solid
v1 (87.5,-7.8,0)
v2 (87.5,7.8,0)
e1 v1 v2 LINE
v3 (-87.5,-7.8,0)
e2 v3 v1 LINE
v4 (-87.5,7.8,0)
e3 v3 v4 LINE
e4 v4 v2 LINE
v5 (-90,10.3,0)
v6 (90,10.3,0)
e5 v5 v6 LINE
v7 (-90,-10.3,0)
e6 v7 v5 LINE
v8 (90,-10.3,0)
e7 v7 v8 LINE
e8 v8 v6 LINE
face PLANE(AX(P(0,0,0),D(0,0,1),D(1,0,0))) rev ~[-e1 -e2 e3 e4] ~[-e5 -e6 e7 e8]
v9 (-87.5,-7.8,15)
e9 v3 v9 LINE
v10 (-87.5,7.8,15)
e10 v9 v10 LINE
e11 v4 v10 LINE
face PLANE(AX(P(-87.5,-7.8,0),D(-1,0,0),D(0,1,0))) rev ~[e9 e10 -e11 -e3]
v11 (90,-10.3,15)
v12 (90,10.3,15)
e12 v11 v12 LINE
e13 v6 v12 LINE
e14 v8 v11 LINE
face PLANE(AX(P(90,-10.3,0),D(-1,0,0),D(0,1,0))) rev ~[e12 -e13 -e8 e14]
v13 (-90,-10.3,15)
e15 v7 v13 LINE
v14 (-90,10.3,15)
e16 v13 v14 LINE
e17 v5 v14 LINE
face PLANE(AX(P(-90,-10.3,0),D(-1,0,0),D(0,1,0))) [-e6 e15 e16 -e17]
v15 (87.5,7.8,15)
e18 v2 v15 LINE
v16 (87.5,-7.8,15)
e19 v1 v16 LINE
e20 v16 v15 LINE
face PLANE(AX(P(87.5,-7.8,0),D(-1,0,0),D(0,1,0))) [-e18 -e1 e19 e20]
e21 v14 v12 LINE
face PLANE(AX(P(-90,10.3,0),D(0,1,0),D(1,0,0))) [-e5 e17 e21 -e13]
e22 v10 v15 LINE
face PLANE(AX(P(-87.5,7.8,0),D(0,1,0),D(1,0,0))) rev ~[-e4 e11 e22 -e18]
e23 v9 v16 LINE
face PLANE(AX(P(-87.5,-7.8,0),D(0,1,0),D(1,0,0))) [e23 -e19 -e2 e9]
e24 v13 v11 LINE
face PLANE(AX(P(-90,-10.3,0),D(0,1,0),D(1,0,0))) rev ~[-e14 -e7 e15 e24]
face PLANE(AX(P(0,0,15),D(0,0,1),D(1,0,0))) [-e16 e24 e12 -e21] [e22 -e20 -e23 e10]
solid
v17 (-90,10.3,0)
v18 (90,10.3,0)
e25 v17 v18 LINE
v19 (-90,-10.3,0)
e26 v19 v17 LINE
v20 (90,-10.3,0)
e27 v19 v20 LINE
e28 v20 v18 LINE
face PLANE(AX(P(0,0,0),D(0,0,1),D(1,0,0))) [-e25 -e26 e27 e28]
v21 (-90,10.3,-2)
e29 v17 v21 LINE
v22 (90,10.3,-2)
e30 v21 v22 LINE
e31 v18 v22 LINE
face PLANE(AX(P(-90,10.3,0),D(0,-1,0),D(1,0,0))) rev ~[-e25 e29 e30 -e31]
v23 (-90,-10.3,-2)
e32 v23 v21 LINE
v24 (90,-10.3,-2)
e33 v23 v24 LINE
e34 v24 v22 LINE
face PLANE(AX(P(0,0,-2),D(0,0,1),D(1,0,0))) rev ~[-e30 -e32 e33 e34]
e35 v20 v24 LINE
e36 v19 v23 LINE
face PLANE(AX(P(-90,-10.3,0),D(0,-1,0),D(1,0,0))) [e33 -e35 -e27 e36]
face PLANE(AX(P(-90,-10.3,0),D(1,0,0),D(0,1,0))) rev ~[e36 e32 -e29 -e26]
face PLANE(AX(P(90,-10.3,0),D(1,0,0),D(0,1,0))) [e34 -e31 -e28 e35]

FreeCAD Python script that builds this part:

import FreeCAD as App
import Part
import Sketcher

V = App.Vector


def add_polygon(sketch, points):
    """Adds a closed chain of lines whose ends are joined by coincident constraints."""
    first, n = sketch.GeometryCount, len(points)
    for a, b in zip(points, points[1:] + points[:1]):
        sketch.addGeometry(Part.LineSegment(App.Vector(*a, 0), App.Vector(*b, 0)), False)
    for i in range(n):
        sketch.addConstraint(Sketcher.Constraint("Coincident", first + i, 2, first + (i + 1) % n, 1))

doc = App.newDocument("Part")
body = doc.addObject("PartDesign::Body", "Body")

sketch1 = body.newObject("Sketcher::SketchObject", "Sketch")
sketch1.AttachmentSupport = (doc.getObject("XY_Plane"), [""])
sketch1.MapMode = "FlatFace"
add_polygon(sketch1, [(-90, 10.3), (-90, -10.3), (90, -10.3), (90, 10.3)])
sketch1.addConstraint([
    Sketcher.Constraint("Vertical", 0),
    Sketcher.Constraint("Horizontal", 1),
    Sketcher.Constraint("Vertical", 2),
    Sketcher.Constraint("Horizontal", 3),
    Sketcher.Constraint("Symmetric", 0, 2, 2, 2, -1, 1),
    Sketcher.Constraint("DistanceX", 1, 1, 1, 2, 180.0),
    Sketcher.Constraint("DistanceY", 0, 2, 0, 1, 20.6),
])
pad1 = body.newObject("PartDesign::Pad", "Pad")
pad1.Profile = sketch1
pad1.Length = 2
pad1.Reversed = True
body2 = doc.addObject("PartDesign::Body", "Body001")

sketch2 = body2.newObject("Sketcher::SketchObject", "Sketch001")
sketch2.AttachmentSupport = (doc.getObject("XY_Plane001"), [""])
sketch2.MapMode = "FlatFace"
add_polygon(sketch2, [(-90, 10.3), (-90, -10.3), (90, -10.3), (90, 10.3)])
add_polygon(sketch2, [(87.5, -7.8), (-87.5, -7.8), (-87.5, 7.8), (87.5, 7.8)])
sketch2.addConstraint([
    Sketcher.Constraint("Vertical", 0),
    Sketcher.Constraint("Horizontal", 1),
    Sketcher.Constraint("Vertical", 2),
    Sketcher.Constraint("Horizontal", 3),
    Sketcher.Constraint("Horizontal", 4),
    Sketcher.Constraint("Vertical", 5),
    Sketcher.Constraint("Horizontal", 6),
    Sketcher.Constraint("Vertical", 7),
    Sketcher.Constraint("Symmetric", 0, 2, 2, 2, -1, 1),
    Sketcher.Constraint("Symmetric", 4, 2, 6, 2, -1, 1),
    Sketcher.Constraint("DistanceX", 1, 1, 1, 2, 180.0),
    Sketcher.Constraint("DistanceX", 4, 2, 4, 1, 175.0),
    Sketcher.Constraint("DistanceY", 0, 2, 0, 1, 20.6),
    Sketcher.Constraint("DistanceY", 5, 1, 5, 2, 15.6),
])
pad2 = body2.newObject("PartDesign::Pad", "Pad001")
pad2.Profile = sketch2
pad2.Length = 15

doc.recompute()
